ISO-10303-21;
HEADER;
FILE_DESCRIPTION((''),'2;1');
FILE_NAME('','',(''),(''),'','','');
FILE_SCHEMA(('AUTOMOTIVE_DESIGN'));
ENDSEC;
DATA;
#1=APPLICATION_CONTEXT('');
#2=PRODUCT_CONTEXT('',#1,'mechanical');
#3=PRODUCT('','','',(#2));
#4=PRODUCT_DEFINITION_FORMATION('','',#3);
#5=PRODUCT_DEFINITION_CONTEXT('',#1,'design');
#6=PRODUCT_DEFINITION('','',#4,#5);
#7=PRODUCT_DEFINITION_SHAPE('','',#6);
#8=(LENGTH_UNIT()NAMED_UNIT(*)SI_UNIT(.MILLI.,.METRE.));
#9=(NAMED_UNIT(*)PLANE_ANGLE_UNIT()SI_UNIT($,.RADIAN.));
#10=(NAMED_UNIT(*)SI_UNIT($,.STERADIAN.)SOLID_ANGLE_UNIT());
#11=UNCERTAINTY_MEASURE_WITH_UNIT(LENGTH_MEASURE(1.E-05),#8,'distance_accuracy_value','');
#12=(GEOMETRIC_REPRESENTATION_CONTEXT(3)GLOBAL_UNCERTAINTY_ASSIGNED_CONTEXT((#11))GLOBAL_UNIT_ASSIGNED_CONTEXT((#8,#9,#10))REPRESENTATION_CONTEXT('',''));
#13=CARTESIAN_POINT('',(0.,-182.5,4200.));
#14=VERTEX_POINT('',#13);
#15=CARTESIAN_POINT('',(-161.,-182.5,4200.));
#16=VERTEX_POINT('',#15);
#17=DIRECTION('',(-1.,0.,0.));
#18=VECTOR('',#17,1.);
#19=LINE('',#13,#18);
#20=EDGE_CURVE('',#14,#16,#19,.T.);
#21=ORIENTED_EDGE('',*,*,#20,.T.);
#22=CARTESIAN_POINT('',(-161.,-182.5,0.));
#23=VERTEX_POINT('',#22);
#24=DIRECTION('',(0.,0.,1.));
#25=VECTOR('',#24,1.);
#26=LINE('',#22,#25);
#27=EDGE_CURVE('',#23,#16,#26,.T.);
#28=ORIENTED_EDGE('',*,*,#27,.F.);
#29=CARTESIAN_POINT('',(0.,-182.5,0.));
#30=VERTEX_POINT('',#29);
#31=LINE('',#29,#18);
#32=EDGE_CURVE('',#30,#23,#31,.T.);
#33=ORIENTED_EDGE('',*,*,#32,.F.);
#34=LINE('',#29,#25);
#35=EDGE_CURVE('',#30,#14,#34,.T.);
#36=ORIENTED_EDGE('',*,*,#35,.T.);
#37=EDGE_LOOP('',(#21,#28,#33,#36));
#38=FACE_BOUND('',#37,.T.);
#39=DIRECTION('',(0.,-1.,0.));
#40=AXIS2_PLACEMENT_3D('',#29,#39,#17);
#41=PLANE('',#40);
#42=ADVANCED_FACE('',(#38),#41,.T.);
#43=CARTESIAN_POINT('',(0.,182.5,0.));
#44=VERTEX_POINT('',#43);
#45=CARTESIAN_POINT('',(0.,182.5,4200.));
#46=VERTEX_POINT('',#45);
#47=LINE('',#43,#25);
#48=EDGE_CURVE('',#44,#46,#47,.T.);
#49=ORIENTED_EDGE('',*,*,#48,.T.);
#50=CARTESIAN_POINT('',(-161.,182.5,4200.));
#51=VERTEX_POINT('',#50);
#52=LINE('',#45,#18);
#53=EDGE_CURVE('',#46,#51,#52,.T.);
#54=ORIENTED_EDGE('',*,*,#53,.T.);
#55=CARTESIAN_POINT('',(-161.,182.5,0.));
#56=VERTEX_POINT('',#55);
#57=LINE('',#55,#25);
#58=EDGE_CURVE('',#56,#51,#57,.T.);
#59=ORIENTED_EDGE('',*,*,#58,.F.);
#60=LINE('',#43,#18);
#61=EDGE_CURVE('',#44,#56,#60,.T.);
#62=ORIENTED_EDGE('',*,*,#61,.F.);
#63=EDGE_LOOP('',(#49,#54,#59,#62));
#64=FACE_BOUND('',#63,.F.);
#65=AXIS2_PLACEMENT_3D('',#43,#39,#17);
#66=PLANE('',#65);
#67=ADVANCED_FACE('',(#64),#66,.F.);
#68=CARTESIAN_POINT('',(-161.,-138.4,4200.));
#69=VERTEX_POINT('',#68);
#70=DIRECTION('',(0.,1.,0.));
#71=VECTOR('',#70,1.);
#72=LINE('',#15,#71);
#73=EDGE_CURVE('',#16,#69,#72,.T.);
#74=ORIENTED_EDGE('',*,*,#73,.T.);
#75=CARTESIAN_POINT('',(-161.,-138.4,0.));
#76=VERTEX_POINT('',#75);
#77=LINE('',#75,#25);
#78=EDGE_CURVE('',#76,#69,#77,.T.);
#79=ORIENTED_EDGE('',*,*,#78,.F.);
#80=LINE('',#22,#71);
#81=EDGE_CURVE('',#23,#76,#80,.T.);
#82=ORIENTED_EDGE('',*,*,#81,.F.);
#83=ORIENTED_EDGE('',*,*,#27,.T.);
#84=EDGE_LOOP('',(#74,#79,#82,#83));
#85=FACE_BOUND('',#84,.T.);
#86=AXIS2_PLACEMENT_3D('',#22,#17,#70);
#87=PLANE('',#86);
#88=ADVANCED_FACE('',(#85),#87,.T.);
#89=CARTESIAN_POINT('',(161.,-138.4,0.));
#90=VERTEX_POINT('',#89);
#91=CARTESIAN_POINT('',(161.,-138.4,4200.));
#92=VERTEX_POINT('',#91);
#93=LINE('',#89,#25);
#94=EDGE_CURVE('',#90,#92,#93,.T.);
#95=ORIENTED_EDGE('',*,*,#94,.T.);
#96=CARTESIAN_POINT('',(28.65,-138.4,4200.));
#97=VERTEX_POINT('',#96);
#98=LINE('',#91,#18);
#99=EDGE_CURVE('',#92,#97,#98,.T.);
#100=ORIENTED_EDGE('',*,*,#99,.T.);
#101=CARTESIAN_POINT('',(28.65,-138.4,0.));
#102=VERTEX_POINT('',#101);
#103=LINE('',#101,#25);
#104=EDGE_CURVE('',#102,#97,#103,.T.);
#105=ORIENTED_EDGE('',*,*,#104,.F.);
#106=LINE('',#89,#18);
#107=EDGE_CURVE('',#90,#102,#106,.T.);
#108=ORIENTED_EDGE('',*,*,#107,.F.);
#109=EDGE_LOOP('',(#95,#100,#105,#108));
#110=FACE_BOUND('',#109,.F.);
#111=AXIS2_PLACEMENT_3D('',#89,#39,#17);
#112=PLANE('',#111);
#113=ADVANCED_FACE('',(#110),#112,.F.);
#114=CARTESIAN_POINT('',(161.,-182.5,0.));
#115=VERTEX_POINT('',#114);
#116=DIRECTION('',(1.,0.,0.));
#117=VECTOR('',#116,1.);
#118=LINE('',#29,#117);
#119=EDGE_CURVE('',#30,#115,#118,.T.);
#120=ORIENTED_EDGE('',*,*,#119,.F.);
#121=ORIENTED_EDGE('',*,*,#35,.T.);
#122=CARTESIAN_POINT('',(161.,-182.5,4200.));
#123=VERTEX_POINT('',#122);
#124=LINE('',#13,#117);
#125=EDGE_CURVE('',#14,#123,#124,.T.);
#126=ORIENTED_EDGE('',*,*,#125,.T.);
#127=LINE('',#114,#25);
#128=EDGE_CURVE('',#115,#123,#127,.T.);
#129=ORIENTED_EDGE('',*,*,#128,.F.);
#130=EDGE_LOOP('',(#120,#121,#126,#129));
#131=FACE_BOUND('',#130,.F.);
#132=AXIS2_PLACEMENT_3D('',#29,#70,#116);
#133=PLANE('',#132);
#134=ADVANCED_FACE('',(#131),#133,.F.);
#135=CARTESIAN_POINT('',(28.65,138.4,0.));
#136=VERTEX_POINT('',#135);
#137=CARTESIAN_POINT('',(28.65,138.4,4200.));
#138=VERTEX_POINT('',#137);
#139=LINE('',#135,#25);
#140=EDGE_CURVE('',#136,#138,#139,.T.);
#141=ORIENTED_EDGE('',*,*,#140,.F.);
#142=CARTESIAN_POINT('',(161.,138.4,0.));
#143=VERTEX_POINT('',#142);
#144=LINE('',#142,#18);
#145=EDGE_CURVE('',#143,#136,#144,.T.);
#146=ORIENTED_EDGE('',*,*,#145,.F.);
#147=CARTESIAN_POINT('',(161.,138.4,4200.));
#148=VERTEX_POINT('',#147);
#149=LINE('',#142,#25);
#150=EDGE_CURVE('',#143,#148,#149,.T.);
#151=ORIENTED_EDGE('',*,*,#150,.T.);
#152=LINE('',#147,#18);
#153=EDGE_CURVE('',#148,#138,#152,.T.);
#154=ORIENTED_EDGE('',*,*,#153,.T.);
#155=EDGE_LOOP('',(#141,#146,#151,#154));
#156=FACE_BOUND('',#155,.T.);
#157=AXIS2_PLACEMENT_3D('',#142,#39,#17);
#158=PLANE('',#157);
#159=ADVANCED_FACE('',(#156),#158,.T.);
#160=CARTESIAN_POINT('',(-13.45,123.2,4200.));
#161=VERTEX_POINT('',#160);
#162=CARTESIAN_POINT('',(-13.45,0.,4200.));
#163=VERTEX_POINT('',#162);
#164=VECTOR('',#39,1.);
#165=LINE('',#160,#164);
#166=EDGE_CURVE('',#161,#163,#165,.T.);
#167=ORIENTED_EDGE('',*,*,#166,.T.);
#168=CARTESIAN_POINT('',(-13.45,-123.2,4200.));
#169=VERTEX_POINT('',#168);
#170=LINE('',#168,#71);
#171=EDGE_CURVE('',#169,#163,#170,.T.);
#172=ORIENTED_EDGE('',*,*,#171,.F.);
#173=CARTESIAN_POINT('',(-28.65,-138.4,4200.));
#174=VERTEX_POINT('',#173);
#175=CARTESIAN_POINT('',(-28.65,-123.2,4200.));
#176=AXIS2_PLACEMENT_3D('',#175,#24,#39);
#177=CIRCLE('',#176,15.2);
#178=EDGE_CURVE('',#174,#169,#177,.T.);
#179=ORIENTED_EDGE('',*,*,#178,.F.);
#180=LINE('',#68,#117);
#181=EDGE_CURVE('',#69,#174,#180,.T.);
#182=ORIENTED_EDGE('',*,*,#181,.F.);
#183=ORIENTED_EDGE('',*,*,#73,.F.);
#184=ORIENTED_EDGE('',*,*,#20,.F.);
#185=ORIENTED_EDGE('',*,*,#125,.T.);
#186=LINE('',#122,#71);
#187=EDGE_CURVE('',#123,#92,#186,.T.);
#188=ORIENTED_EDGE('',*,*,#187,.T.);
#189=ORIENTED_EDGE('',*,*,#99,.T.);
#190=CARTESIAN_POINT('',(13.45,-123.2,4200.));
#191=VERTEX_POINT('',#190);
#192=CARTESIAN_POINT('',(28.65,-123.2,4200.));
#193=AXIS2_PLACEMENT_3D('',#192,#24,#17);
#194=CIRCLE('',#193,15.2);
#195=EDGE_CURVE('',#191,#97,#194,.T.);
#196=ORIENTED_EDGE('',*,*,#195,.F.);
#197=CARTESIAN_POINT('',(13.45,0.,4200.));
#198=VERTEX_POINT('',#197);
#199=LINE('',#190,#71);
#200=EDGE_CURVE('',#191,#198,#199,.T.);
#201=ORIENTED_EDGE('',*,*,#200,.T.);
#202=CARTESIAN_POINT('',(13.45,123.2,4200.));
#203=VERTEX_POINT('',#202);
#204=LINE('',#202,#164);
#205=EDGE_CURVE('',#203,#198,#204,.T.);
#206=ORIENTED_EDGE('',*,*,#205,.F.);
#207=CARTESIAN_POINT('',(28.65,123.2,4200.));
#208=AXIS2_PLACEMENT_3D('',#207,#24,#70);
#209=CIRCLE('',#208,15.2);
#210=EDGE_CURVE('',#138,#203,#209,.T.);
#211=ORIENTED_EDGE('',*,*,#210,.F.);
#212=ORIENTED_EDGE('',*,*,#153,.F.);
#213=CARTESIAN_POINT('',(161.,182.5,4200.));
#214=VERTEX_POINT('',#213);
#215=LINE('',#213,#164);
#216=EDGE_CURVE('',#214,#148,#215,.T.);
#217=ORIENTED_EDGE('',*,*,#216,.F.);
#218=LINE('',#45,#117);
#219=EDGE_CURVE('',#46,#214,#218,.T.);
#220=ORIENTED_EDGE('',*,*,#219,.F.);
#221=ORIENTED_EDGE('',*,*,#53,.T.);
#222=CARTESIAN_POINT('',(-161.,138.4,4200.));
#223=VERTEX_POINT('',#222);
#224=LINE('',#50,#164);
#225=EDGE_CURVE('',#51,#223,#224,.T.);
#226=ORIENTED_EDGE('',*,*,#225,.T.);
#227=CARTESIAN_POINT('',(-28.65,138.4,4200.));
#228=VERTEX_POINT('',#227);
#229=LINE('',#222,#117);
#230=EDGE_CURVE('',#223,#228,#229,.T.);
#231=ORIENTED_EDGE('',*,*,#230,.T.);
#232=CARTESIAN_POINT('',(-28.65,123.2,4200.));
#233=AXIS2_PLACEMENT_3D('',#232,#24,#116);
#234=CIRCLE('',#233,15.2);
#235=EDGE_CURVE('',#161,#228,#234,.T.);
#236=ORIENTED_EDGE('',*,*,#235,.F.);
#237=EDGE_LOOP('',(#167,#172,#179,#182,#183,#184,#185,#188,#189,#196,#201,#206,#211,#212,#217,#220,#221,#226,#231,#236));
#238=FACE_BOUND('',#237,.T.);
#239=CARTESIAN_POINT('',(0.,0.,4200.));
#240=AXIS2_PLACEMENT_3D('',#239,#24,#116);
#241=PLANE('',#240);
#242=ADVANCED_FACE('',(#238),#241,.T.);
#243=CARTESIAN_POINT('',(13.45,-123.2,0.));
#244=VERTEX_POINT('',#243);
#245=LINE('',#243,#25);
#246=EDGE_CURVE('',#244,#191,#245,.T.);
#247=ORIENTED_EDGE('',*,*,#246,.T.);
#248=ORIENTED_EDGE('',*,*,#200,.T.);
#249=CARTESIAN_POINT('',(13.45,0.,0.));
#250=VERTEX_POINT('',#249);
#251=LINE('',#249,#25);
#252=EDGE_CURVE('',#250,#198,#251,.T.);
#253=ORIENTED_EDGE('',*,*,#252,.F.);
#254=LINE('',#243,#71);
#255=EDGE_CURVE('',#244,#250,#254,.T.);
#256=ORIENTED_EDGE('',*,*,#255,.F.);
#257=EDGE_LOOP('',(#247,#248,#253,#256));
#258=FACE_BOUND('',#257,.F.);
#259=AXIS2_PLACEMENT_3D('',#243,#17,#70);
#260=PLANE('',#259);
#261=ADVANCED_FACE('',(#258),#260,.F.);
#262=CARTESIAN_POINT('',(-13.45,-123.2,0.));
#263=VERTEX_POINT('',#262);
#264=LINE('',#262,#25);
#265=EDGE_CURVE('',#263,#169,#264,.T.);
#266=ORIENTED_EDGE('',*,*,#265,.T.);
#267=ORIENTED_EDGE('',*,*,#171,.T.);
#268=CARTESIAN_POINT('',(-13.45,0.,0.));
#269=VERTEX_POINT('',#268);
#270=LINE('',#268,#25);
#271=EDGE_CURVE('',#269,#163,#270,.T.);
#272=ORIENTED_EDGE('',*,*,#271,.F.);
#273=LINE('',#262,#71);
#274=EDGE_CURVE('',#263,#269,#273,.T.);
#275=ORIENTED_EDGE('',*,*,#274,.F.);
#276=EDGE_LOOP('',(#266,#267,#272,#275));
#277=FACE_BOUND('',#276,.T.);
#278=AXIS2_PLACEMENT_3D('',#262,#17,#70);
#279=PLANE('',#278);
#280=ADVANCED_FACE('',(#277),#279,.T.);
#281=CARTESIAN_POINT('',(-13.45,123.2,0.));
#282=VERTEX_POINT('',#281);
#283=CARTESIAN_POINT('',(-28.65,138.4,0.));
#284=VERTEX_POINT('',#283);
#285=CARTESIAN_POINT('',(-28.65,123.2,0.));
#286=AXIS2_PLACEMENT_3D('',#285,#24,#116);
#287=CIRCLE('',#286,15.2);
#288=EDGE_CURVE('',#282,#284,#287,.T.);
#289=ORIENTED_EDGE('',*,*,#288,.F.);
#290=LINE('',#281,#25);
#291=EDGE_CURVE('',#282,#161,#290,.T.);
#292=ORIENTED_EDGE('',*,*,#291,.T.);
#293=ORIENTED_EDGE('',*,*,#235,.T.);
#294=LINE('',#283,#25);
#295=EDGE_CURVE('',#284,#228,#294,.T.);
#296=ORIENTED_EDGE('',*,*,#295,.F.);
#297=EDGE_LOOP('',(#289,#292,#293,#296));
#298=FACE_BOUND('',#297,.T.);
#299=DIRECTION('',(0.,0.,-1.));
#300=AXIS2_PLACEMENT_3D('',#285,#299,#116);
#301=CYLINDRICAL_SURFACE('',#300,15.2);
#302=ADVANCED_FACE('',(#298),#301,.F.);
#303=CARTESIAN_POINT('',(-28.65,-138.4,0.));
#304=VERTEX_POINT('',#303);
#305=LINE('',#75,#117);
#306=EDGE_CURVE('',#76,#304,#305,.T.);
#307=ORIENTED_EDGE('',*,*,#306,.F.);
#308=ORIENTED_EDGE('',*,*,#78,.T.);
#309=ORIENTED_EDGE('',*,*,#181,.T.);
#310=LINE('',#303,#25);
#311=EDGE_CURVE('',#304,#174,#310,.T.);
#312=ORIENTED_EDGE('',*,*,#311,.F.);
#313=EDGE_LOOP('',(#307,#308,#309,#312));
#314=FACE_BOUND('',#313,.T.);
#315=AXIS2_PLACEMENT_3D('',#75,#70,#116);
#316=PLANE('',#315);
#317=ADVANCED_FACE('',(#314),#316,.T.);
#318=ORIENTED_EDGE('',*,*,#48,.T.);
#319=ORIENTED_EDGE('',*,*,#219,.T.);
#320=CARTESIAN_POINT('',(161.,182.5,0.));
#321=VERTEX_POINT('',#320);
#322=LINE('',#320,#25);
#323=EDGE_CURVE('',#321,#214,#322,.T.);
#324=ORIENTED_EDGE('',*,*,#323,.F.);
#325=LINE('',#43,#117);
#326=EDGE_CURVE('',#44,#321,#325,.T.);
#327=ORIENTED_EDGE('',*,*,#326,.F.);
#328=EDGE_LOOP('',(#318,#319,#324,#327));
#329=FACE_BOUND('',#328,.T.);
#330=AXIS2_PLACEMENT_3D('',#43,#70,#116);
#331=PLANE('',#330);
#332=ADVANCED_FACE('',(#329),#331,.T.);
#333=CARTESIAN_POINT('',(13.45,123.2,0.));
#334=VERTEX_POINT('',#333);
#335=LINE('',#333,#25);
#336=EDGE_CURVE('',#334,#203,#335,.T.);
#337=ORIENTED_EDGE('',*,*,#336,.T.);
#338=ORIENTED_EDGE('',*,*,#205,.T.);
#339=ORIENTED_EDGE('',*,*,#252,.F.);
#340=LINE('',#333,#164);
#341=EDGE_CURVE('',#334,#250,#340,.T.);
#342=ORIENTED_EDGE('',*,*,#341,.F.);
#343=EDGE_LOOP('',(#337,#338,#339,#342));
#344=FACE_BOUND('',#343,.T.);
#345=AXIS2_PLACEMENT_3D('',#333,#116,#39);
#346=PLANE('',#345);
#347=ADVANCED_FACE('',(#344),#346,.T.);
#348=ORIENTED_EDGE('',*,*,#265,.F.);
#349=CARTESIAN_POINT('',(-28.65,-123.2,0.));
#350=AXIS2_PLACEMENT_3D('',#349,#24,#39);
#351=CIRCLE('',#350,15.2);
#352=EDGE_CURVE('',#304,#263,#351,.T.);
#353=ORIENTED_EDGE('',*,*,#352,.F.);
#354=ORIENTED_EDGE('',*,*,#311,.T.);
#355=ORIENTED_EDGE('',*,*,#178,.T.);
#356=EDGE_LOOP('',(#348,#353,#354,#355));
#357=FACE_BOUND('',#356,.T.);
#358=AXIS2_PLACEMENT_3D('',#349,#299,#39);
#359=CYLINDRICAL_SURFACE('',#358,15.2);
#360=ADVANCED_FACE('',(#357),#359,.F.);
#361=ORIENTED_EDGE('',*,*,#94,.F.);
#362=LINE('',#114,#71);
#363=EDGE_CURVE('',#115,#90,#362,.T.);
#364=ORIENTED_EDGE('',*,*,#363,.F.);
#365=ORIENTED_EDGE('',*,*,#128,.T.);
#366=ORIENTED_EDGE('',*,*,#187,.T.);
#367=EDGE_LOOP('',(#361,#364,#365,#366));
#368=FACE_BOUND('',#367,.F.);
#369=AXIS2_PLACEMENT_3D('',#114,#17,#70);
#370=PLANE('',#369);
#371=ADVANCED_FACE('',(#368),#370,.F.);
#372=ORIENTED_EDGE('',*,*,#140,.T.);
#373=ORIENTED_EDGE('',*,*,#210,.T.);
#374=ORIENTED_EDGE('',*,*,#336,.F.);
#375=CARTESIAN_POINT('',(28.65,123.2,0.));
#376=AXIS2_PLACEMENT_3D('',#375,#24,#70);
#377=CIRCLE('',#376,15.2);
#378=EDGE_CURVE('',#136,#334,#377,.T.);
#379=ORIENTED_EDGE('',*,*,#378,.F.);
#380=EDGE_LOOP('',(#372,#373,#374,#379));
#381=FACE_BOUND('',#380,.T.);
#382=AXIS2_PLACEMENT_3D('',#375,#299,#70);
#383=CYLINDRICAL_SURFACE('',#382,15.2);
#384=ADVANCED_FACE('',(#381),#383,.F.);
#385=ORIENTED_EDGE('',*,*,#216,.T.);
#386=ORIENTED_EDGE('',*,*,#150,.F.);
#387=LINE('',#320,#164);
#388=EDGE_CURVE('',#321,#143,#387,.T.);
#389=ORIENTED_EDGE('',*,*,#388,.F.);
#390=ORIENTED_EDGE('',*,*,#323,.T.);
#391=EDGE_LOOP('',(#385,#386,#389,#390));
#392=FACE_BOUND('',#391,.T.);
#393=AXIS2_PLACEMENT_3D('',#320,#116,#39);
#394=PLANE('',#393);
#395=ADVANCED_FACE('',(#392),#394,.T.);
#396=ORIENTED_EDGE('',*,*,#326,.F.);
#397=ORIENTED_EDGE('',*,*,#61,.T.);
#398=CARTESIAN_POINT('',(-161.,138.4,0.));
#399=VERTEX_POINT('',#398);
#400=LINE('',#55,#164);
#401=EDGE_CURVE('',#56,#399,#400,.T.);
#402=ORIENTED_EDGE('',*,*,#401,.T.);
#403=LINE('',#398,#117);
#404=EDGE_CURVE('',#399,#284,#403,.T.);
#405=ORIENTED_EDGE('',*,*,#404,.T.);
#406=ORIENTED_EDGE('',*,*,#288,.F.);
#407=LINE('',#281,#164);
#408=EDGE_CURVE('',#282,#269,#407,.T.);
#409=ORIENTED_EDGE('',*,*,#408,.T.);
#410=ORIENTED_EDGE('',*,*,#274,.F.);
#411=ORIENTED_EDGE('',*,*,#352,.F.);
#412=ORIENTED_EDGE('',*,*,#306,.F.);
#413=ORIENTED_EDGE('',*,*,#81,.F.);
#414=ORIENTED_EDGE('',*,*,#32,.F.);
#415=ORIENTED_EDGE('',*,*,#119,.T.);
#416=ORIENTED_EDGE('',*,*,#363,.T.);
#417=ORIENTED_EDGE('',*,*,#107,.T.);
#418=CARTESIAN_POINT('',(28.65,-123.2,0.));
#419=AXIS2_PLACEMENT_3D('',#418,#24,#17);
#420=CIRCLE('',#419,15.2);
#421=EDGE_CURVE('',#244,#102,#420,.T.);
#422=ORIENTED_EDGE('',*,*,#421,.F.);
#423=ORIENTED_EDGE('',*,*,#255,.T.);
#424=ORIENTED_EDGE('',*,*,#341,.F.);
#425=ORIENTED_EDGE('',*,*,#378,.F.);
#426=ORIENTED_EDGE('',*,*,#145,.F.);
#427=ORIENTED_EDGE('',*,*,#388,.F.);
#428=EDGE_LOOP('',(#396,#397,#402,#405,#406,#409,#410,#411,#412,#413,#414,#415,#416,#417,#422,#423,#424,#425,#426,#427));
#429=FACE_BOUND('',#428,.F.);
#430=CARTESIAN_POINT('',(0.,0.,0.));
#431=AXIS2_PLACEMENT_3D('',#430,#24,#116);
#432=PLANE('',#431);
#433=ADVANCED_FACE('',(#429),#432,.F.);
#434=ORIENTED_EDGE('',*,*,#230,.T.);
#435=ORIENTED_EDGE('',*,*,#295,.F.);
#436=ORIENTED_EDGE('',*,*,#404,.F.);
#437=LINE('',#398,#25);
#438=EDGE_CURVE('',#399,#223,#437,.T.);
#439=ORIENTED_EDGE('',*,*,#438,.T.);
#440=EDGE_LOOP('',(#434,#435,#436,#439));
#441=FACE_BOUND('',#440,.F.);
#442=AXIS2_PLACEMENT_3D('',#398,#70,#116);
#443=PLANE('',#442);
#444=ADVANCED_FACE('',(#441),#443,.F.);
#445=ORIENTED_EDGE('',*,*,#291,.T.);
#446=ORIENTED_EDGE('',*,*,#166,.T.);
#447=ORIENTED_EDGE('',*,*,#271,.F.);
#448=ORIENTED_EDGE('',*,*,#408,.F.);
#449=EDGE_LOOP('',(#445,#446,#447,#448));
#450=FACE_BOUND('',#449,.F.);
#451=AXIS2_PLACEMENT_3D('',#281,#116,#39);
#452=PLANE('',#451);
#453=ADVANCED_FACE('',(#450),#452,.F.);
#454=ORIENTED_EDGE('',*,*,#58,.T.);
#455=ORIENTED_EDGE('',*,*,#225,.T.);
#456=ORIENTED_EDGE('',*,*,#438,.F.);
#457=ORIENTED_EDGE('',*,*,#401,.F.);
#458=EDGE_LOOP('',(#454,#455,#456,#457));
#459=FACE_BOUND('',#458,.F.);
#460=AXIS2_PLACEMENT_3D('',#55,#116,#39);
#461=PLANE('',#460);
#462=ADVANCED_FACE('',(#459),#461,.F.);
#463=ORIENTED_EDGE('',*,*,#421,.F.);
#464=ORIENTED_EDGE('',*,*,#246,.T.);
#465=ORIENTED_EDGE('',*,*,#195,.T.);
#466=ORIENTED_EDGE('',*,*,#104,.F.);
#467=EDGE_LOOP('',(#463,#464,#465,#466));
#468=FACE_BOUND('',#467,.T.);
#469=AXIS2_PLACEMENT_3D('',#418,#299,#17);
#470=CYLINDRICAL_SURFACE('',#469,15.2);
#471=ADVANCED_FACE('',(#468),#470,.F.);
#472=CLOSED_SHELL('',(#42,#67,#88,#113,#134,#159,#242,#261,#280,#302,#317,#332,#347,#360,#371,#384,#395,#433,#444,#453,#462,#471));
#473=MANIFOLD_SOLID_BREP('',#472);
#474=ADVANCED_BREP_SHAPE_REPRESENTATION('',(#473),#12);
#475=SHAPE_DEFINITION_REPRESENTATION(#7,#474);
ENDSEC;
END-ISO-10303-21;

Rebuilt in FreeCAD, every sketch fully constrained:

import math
import FreeCAD as App
import Part
import Sketcher
from FreeCAD import Vector

doc = App.newDocument("Part")
params = doc.addObject("Spreadsheet::Sheet", "Params")
for row, (alias, value) in enumerate([
    ("sketch1_radius", "15.2 mm"),
    ("sketch1_height", "44.1 mm"),
    ("pad1_length", "4200 mm"),
], start=1):
    params.set(f"A{row}", alias)
    params.set(f"B{row}", "=" + value)
    params.setAlias(f"B{row}", alias)

body = doc.addObject("PartDesign::Body", "Body")

sketch1 = body.newObject("Sketcher::SketchObject", "Sketch")
sketch1.AttachmentSupport = (doc.getObject("XY_Plane"), [""])
sketch1.MapMode = "FlatFace"
sketch1.addGeometry(Part.LineSegment(Vector(-161, -138, 0), Vector(-161, -182, 0)), False)
sketch1.addGeometry(Part.LineSegment(Vector(-161, -182, 0), Vector(161, -182, 0)), False)
sketch1.addGeometry(Part.LineSegment(Vector(161, -182, 0), Vector(161, -138, 0)), False)
sketch1.addGeometry(Part.LineSegment(Vector(161, -138, 0), Vector(29, -138, 0)), False)
sketch1.addGeometry(Part.ArcOfCircle(Part.Circle(Vector(29, -123, 0), Vector(0, 0, 1), 15), math.radians(180), math.radians(270)), False)
sketch1.addGeometry(Part.LineSegment(Vector(13, -123, 0), Vector(13, 123, 0)), False)
sketch1.addGeometry(Part.ArcOfCircle(Part.Circle(Vector(29, 123, 0), Vector(0, 0, 1), 15), math.radians(90), math.radians(180)), False)
sketch1.addGeometry(Part.LineSegment(Vector(29, 138, 0), Vector(161, 138, 0)), False)
sketch1.addGeometry(Part.LineSegment(Vector(161, 138, 0), Vector(161, 182, 0)), False)
sketch1.addGeometry(Part.LineSegment(Vector(161, 182, 0), Vector(-161, 182, 0)), False)
sketch1.addGeometry(Part.LineSegment(Vector(-161, 182, 0), Vector(-161, 138, 0)), False)
sketch1.addGeometry(Part.LineSegment(Vector(-161, 138, 0), Vector(-29, 138, 0)), False)
sketch1.addGeometry(Part.ArcOfCircle(Part.Circle(Vector(-29, 123, 0), Vector(0, 0, 1), 15), math.radians(0), math.radians(90)), False)
sketch1.addGeometry(Part.LineSegment(Vector(-13, 123, 0), Vector(-13, -123, 0)), False)
sketch1.addGeometry(Part.ArcOfCircle(Part.Circle(Vector(-29, -123, 0), Vector(0, 0, 1), 15), math.radians(-90), math.radians(0)), False)
sketch1.addGeometry(Part.LineSegment(Vector(-29, -138, 0), Vector(-161, -138, 0)), False)
sketch1.addConstraint(Sketcher.Constraint("Coincident", 0, 2, 1, 1))
sketch1.addConstraint(Sketcher.Constraint("Coincident", 1, 2, 2, 1))
sketch1.addConstraint(Sketcher.Constraint("Coincident", 2, 2, 3, 1))
sketch1.addConstraint(Sketcher.Constraint("Tangent", 3, 2, 4, 2))
sketch1.addConstraint(Sketcher.Constraint("Tangent", 4, 1, 5, 1))
sketch1.addConstraint(Sketcher.Constraint("Tangent", 5, 2, 6, 2))
sketch1.addConstraint(Sketcher.Constraint("Tangent", 6, 1, 7, 1))
sketch1.addConstraint(Sketcher.Constraint("Coincident", 7, 2, 8, 1))
sketch1.addConstraint(Sketcher.Constraint("Coincident", 8, 2, 9, 1))
sketch1.addConstraint(Sketcher.Constraint("Coincident", 9, 2, 10, 1))
sketch1.addConstraint(Sketcher.Constraint("Coincident", 10, 2, 11, 1))
sketch1.addConstraint(Sketcher.Constraint("Tangent", 11, 2, 12, 2))
sketch1.addConstraint(Sketcher.Constraint("Tangent", 12, 1, 13, 1))
sketch1.addConstraint(Sketcher.Constraint("Tangent", 13, 2, 14, 2))
sketch1.addConstraint(Sketcher.Constraint("Tangent", 14, 1, 15, 1))
sketch1.addConstraint(Sketcher.Constraint("Coincident", 15, 2, 0, 1))
sketch1.addConstraint(Sketcher.Constraint("Vertical", 0))
sketch1.addConstraint(Sketcher.Constraint("Horizontal", 1))
sketch1.addConstraint(Sketcher.Constraint("Vertical", 2))
sketch1.addConstraint(Sketcher.Constraint("Horizontal", 3))
sketch1.addConstraint(Sketcher.Constraint("Vertical", 5))
sketch1.addConstraint(Sketcher.Constraint("Horizontal", 7))
sketch1.addConstraint(Sketcher.Constraint("Vertical", 8))
sketch1.addConstraint(Sketcher.Constraint("Horizontal", 9))
sketch1.addConstraint(Sketcher.Constraint("Vertical", 10))
sketch1.addConstraint(Sketcher.Constraint("Horizontal", 11))
sketch1.addConstraint(Sketcher.Constraint("Vertical", 13))
sketch1.addConstraint(Sketcher.Constraint("Horizontal", 15))
sketch1.addConstraint(Sketcher.Constraint("Equal", 4, 6))
sketch1.addConstraint(Sketcher.Constraint("Equal", 6, 12))
sketch1.addConstraint(Sketcher.Constraint("Equal", 12, 14))
sketch1.addConstraint(Sketcher.Constraint("Symmetric", 4, 3, 12, 3, -1, 1))
sketch1.addConstraint(Sketcher.Constraint("Symmetric", 0, 2, 8, 2, -1, 1))
sketch1.addConstraint(Sketcher.Constraint("Symmetric", 7, 2, 10, 2, -2))
sketch1.addConstraint(Sketcher.Constraint("Symmetric", 2, 2, 15, 2, -2))
sketch1.addConstraint(Sketcher.Constraint("Radius", 4, 15.2))
sketch1.addConstraint(Sketcher.Constraint("DistanceY", 0, 2, 0, 1, 44.1))
sketch1.addConstraint(Sketcher.Constraint("DistanceX", 0, 2, -1, 1, 161.0))
sketch1.addConstraint(Sketcher.Constraint("DistanceY", 0, 2, -1, 1, 182.5))
sketch1.addConstraint(Sketcher.Constraint("DistanceX", -1, 1, 4, 1, 13.45))
sketch1.setExpression("Constraints[35]", "Params.sketch1_radius")
sketch1.setExpression("Constraints[36]", "Params.sketch1_height")
pad1 = body.newObject("PartDesign::Pad", "Pad")
pad1.Profile = sketch1
pad1.setExpression("Length", "Params.pad1_length")

doc.recompute()
